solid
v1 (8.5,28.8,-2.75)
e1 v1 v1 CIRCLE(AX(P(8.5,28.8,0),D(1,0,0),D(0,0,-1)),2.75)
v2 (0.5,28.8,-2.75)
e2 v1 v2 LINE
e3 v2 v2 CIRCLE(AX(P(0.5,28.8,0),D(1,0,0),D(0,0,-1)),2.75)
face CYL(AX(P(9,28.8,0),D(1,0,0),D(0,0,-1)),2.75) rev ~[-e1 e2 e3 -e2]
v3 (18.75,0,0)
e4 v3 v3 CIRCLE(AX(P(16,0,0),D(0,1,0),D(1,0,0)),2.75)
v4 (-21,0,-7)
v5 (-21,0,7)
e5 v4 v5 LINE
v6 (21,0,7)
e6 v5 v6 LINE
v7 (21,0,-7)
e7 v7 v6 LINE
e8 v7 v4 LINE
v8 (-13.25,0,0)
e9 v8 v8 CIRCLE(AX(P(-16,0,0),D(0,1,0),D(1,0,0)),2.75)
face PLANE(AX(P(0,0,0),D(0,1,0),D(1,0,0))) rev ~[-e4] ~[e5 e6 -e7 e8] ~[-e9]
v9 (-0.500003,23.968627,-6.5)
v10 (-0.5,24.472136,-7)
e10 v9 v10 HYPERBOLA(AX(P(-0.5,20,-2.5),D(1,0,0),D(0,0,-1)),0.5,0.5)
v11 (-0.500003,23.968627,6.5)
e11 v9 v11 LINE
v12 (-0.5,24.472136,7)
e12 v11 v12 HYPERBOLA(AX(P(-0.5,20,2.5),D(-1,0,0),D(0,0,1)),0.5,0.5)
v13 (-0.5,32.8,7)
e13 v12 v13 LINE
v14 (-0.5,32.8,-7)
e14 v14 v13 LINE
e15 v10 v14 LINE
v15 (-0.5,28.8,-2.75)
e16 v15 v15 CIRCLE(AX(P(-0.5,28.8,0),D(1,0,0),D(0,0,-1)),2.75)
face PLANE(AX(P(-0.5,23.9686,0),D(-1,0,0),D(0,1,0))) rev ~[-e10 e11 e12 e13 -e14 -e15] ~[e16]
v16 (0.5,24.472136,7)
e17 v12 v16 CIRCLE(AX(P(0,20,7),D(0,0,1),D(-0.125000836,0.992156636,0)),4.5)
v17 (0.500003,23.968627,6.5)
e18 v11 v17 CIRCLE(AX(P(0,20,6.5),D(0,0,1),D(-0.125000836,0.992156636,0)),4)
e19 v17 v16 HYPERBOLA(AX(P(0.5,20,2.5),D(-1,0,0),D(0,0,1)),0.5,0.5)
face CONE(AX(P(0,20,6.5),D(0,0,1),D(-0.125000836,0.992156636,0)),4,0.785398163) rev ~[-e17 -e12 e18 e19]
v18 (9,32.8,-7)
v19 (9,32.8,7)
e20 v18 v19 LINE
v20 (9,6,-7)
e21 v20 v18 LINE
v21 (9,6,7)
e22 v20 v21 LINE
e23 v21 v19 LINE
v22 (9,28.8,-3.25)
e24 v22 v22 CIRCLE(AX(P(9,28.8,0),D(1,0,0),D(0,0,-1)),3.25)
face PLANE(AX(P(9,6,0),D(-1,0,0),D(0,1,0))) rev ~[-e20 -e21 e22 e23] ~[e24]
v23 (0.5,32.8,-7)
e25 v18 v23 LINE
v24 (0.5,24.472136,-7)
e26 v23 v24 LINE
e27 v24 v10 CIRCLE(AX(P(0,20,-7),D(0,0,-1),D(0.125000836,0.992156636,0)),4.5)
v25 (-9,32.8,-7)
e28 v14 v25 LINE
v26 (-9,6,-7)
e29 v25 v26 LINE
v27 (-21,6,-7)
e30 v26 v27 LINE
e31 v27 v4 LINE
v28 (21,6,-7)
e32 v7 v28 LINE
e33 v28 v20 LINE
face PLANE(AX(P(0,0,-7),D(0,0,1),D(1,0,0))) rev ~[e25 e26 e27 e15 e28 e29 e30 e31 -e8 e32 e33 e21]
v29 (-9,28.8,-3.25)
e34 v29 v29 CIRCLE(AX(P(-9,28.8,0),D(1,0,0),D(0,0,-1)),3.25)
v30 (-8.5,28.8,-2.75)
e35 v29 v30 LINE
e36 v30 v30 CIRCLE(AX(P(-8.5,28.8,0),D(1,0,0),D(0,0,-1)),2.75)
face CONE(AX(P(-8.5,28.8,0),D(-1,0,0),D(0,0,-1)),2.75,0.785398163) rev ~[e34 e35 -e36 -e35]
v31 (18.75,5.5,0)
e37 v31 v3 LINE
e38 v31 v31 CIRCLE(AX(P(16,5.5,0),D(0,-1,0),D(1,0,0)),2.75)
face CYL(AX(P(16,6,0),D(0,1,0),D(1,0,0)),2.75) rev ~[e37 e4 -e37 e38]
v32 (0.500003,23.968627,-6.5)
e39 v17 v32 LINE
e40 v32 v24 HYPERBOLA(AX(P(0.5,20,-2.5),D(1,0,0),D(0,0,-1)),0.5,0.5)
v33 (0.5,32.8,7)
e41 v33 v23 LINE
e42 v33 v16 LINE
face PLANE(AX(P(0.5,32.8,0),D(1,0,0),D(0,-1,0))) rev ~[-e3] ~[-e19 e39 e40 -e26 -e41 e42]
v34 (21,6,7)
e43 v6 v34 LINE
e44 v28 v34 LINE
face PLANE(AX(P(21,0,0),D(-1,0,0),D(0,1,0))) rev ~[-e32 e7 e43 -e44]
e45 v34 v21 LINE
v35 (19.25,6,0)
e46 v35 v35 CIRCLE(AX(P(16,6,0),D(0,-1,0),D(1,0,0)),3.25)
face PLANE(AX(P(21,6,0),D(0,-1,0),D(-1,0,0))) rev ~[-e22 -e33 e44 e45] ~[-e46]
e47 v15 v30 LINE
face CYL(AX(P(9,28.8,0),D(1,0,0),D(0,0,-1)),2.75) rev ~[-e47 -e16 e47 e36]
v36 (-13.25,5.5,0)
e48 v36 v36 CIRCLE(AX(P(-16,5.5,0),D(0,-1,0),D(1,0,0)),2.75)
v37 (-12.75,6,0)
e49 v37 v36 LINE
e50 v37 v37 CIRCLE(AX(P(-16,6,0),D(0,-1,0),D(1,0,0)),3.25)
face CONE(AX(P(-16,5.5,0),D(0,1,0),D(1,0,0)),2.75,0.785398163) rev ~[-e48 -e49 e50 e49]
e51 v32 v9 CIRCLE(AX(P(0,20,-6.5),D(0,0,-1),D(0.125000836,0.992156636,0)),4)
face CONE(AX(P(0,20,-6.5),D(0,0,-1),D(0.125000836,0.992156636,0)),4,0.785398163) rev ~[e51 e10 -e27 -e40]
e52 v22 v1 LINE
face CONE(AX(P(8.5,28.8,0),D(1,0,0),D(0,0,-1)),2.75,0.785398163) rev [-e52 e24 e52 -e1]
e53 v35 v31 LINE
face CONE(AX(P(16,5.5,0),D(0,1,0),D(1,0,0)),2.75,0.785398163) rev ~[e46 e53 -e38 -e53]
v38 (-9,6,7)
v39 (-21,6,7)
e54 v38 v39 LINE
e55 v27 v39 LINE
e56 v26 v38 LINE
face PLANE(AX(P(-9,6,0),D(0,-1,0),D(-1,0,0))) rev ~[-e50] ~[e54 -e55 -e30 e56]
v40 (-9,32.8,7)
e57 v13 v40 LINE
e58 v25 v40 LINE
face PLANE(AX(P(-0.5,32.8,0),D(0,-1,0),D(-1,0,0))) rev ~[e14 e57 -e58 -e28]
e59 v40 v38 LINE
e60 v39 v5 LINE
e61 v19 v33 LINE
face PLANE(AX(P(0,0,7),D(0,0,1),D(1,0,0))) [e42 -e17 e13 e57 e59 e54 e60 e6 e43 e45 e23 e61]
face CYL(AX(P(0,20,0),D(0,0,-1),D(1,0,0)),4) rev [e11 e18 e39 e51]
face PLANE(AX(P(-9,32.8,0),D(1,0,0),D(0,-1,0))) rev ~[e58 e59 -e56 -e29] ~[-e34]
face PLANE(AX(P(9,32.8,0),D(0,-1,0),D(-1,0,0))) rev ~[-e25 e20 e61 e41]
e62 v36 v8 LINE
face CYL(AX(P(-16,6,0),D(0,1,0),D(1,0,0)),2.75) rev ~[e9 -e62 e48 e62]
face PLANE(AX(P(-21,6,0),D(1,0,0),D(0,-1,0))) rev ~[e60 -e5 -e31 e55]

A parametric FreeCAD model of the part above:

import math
import FreeCAD as App
import Part
import Sketcher


def edges_at(feature, points):
    """Names of the edges that pass closest to the given points."""
    edges = feature.Shape.Edges
    near = lambda p: min(range(len(edges)), key=lambda i: edges[i].distToShape(Part.Vertex(*p))[0])
    return sorted({f"Edge{near(p) + 1}" for p in points})

doc = App.newDocument("Part")
body = doc.addObject("PartDesign::Body", "Body")

sketch1 = doc.addObject("Sketcher::SketchObject", "Sketch")
body.addObject(sketch1)
sketch1.AttachmentSupport = (doc.XY_Plane, [""])
sketch1.MapMode = "FlatFace"
sketch1.addGeometry([
    Part.LineSegment(App.Vector(-0.5, 23.9686, 0), App.Vector(-0.5, 32.8, 0)),
    Part.LineSegment(App.Vector(-0.5, 32.8, 0), App.Vector(-9, 32.8, 0)),
    Part.LineSegment(App.Vector(-9, 32.8, 0), App.Vector(-9, 6, 0)),
    Part.LineSegment(App.Vector(-9, 6, 0), App.Vector(-21, 6, 0)),
    Part.LineSegment(App.Vector(-21, 6, 0), App.Vector(-21, 0, 0)),
    Part.LineSegment(App.Vector(-21, 0, 0), App.Vector(21, 0, 0)),
    Part.LineSegment(App.Vector(21, 0, 0), App.Vector(21, 6, 0)),
    Part.LineSegment(App.Vector(21, 6, 0), App.Vector(9, 6, 0)),
    Part.LineSegment(App.Vector(9, 6, 0), App.Vector(9, 32.8, 0)),
    Part.LineSegment(App.Vector(9, 32.8, 0), App.Vector(0.5, 32.8, 0)),
    Part.LineSegment(App.Vector(0.5, 32.8, 0), App.Vector(0.5, 23.9686, 0)),
    Part.ArcOfCircle(Part.Circle(App.Vector(0, 20, 0), App.Vector(0, 0, 1), 4), math.radians(97.180804), math.radians(442.819196)),
], False)
sketch1.addConstraint([
    Sketcher.Constraint("Coincident", 0, 2, 1, 1),
    Sketcher.Constraint("Coincident", 1, 2, 2, 1),
    Sketcher.Constraint("Coincident", 2, 2, 3, 1),
    Sketcher.Constraint("Coincident", 3, 2, 4, 1),
    Sketcher.Constraint("Coincident", 4, 2, 5, 1),
    Sketcher.Constraint("Coincident", 5, 2, 6, 1),
    Sketcher.Constraint("Coincident", 6, 2, 7, 1),
    Sketcher.Constraint("Coincident", 7, 2, 8, 1),
    Sketcher.Constraint("Coincident", 8, 2, 9, 1),
    Sketcher.Constraint("Coincident", 9, 2, 10, 1),
    Sketcher.Constraint("Coincident", 10, 2, 11, 2),
    Sketcher.Constraint("Coincident", 11, 1, 0, 1),
    Sketcher.Constraint("Vertical", 0),
    Sketcher.Constraint("Horizontal", 1),
    Sketcher.Constraint("Vertical", 2),
    Sketcher.Constraint("Horizontal", 3),
    Sketcher.Constraint("Vertical", 4),
    Sketcher.Constraint("Horizontal", 5),
    Sketcher.Constraint("Vertical", 6),
    Sketcher.Constraint("Horizontal", 7),
    Sketcher.Constraint("Vertical", 8),
    Sketcher.Constraint("Horizontal", 9),
    Sketcher.Constraint("Vertical", 10),
    Sketcher.Constraint("Symmetric", 4, 2, 5, 2, -1, 1),
    Sketcher.Constraint("Symmetric", 2, 2, 7, 2, -2),
    Sketcher.Constraint("Symmetric", 0, 2, 9, 2, -2),
    Sketcher.Constraint("PointOnObject", 11, 3, -2),
    Sketcher.Constraint("Radius", 11, 4.0),
    Sketcher.Constraint("DistanceX", 5, 1, 5, 2, 42.0),
    Sketcher.Constraint("DistanceY", 4, 2, 4, 1, 6.0),
    Sketcher.Constraint("DistanceY", -1, 1, 11, 3, 20.0),
    Sketcher.Constraint("DistanceX", 2, 2, 7, 2, 18.0),
    Sketcher.Constraint("DistanceX", 0, 2, 9, 2, 1.0),
    Sketcher.Constraint("DistanceY", -1, 1, 0, 2, 32.8),
])
pad1 = doc.addObject("PartDesign::Pad", "Pad")
body.addObject(pad1)
pad1.Profile = sketch1
pad1.Length = 14
pad1.Midplane = True

sketch2 = doc.addObject("Sketcher::SketchObject", "Sketch001")
body.addObject(sketch2)
sketch2.AttachmentSupport = (doc.XZ_Plane, [""])
sketch2.MapMode = "FlatFace"
sketch2.AttachmentOffset = App.Placement(App.Vector(0, 0, -6), App.Rotation())
sketch2.addGeometry([
    Part.Circle(App.Vector(-16, 0, 0), App.Vector(0, 0, 1), 2.75),
    Part.Circle(App.Vector(16, 0, 0), App.Vector(0, 0, 1), 2.75),
], False)
sketch2.addConstraint([
    Sketcher.Constraint("Equal", 0, 1),
    Sketcher.Constraint("Symmetric", 0, 3, 1, 3, -1, 1),
    Sketcher.Constraint("PointOnObject", 0, 3, -1),
    Sketcher.Constraint("Diameter", 0, 5.5),
    Sketcher.Constraint("DistanceX", 0, 3, 1, 3, 32.0),
])
pocket1 = doc.addObject("PartDesign::Pocket", "Pocket")
body.addObject(pocket1)
pocket1.Profile = sketch2
pocket1.Type = "UpToFirst"
pocket1.Reversed = True

sketch3 = doc.addObject("Sketcher::SketchObject", "Sketch002")
body.addObject(sketch3)
sketch3.AttachmentSupport = (doc.YZ_Plane, [""])
sketch3.MapMode = "FlatFace"
sketch3.AttachmentOffset = App.Placement(App.Vector(0, 0, 9), App.Rotation())
sketch3.addGeometry(Part.Circle(App.Vector(28.8, 0, 0), App.Vector(0, 0, 1), 2.75), False)
sketch3.addConstraint([
    Sketcher.Constraint("PointOnObject", 0, 3, -1),
    Sketcher.Constraint("Diameter", 0, 5.5),
    Sketcher.Constraint("DistanceX", -1, 1, 0, 3, 28.8),
])
pocket2 = doc.addObject("PartDesign::Pocket", "Pocket001")
body.addObject(pocket2)
pocket2.Profile = sketch3
pocket2.Length = 18
doc.recompute()

chamfer = doc.addObject("PartDesign::Chamfer", "Chamfer")
body.addObject(chamfer)
chamfer.Base = (pocket2, edges_at(pocket2, [
    (0, 16, 7),
    (0, 16, -7),
    (9, 28.8, 2.75),
    (13.25, 6, 0),
    (-9, 28.8, 2.75),
    (-18.75, 6, 0),
]))
chamfer.Size = 0.5

doc.recompute()
